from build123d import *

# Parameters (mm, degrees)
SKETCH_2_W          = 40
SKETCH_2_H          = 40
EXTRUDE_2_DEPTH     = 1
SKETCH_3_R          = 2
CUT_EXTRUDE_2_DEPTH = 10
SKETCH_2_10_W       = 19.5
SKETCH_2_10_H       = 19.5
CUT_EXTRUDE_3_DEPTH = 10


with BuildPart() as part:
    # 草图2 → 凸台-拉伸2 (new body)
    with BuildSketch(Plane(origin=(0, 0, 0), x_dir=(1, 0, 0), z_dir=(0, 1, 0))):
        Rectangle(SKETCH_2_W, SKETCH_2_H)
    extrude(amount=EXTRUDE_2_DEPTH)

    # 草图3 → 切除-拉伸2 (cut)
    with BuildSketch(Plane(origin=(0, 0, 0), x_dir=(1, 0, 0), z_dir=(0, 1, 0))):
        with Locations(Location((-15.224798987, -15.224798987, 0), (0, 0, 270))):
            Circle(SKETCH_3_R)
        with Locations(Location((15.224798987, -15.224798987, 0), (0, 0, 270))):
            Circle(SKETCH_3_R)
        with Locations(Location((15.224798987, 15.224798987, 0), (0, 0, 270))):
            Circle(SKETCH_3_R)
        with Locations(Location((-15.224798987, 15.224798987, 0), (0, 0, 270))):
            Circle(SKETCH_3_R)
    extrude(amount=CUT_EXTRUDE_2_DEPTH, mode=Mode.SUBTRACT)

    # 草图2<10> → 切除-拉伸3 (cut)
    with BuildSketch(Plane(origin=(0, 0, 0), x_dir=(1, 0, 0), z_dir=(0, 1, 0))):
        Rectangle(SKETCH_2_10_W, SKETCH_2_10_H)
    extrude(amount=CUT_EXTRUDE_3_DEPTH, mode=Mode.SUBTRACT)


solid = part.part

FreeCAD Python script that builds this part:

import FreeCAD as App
import Part
import Sketcher
from FreeCAD import Vector
Q = App.Units.Quantity

doc = App.newDocument("Part")
body = doc.addObject("PartDesign::Body", "Body")

sketch1 = body.newObject("Sketcher::SketchObject", "Sketch")
sketch1.AttachmentSupport = (doc.getObject("XZ_Plane"), [""])
sketch1.MapMode = "FlatFace"
sketch1.addGeometry(Part.LineSegment(Vector(-20, -20, 0), Vector(-20, 20, 0)), False)
sketch1.addGeometry(Part.LineSegment(Vector(-20, 20, 0), Vector(20, 20, 0)), False)
sketch1.addGeometry(Part.LineSegment(Vector(20, 20, 0), Vector(20, -20, 0)), False)
sketch1.addGeometry(Part.LineSegment(Vector(20, -20, 0), Vector(-20, -20, 0)), False)
sketch1.addConstraint(Sketcher.Constraint("Coincident", 0, 2, 1, 1))
sketch1.addConstraint(Sketcher.Constraint("Coincident", 1, 2, 2, 1))
sketch1.addConstraint(Sketcher.Constraint("Coincident", 2, 2, 3, 1))
sketch1.addConstraint(Sketcher.Constraint("Coincident", 3, 2, 0, 1))
sketch1.addConstraint(Sketcher.Constraint("Vertical", 0))
sketch1.addConstraint(Sketcher.Constraint("Horizontal", 1))
sketch1.addConstraint(Sketcher.Constraint("Vertical", 2))
sketch1.addConstraint(Sketcher.Constraint("Horizontal", 3))
sketch1.addConstraint(Sketcher.Constraint("Symmetric", 0, 2, 2, 2, -1, 1))
sketch1.addConstraint(Sketcher.Constraint("Equal", 3, 0))
sketch1.addConstraint(Sketcher.Constraint("DistanceX", 1, 1, 1, 2, Q("40 mm")))
pad1 = body.newObject("PartDesign::Pad", "Pad")
pad1.Profile = sketch1
pad1.Length = 1
pad1.Reversed = True

sketch2 = body.newObject("Sketcher::SketchObject", "Sketch001")
sketch2.AttachmentSupport = (doc.getObject("XZ_Plane"), [""])
sketch2.MapMode = "FlatFace"
sketch2.addGeometry(Part.Circle(Vector(-15.2, 15.2, 0), Vector(0, 0, 1), 2), False)
sketch2.addGeometry(Part.Circle(Vector(15.2, 15.2, 0), Vector(0, 0, 1), 2), False)
sketch2.addGeometry(Part.Circle(Vector(15.2, -15.2, 0), Vector(0, 0, 1), 2), False)
sketch2.addGeometry(Part.Circle(Vector(-15.2, -15.2, 0), Vector(0, 0, 1), 2), False)
sketch2.addConstraint(Sketcher.Constraint("Equal", 0, 1))
sketch2.addConstraint(Sketcher.Constraint("Equal", 1, 2))
sketch2.addConstraint(Sketcher.Constraint("Equal", 2, 3))
sketch2.addConstraint(Sketcher.Constraint("Symmetric", 0, 3, 2, 3, -1, 1))
sketch2.addConstraint(Sketcher.Constraint("Symmetric", 1, 3, 3, 3, -1, 1))
sketch2.addConstraint(Sketcher.Constraint("Symmetric", 0, 3, 1, 3, -2))
sketch2.addConstraint(Sketcher.Constraint("Diameter", 0, Q("4 mm")))
sketch2.addConstraint(Sketcher.Constraint("DistanceX", 0, 3, -1, 1, Q("15.224799 mm")))
sketch2.addConstraint(Sketcher.Constraint("DistanceY", -1, 1, 0, 3, Q("15.224799 mm")))
pocket1 = body.newObject("PartDesign::Pocket", "Pocket")
pocket1.Profile = sketch2
pocket1.Length = 10

sketch3 = body.newObject("Sketcher::SketchObject", "Sketch002")
sketch3.AttachmentSupport = (doc.getObject("XZ_Plane"), [""])
sketch3.MapMode = "FlatFace"
sketch3.addGeometry(Part.LineSegment(Vector(-10, -10, 0), Vector(-10, 10, 0)), False)
sketch3.addGeometry(Part.LineSegment(Vector(-10, 10, 0), Vector(10, 10, 0)), False)
sketch3.addGeometry(Part.LineSegment(Vector(10, 10, 0), Vector(10, -10, 0)), False)
sketch3.addGeometry(Part.LineSegment(Vector(10, -10, 0), Vector(-10, -10, 0)), False)
sketch3.addConstraint(Sketcher.Constraint("Coincident", 0, 2, 1, 1))
sketch3.addConstraint(Sketcher.Constraint("Coincident", 1, 2, 2, 1))
sketch3.addConstraint(Sketcher.Constraint("Coincident", 2, 2, 3, 1))
sketch3.addConstraint(Sketcher.Constraint("Coincident", 3, 2, 0, 1))
sketch3.addConstraint(Sketcher.Constraint("Vertical", 0))
sketch3.addConstraint(Sketcher.Constraint("Horizontal", 1))
sketch3.addConstraint(Sketcher.Constraint("Vertical", 2))
sketch3.addConstraint(Sketcher.Constraint("Horizontal", 3))
sketch3.addConstraint(Sketcher.Constraint("Symmetric", 0, 2, 2, 2, -1, 1))
sketch3.addConstraint(Sketcher.Constraint("Equal", 3, 0))
sketch3.addConstraint(Sketcher.Constraint("DistanceX", 1, 1, 1, 2, Q("19.5 mm")))
pocket2 = body.newObject("PartDesign::Pocket", "Pocket001")
pocket2.Profile = sketch3
pocket2.Length = 10

doc.recompute()
